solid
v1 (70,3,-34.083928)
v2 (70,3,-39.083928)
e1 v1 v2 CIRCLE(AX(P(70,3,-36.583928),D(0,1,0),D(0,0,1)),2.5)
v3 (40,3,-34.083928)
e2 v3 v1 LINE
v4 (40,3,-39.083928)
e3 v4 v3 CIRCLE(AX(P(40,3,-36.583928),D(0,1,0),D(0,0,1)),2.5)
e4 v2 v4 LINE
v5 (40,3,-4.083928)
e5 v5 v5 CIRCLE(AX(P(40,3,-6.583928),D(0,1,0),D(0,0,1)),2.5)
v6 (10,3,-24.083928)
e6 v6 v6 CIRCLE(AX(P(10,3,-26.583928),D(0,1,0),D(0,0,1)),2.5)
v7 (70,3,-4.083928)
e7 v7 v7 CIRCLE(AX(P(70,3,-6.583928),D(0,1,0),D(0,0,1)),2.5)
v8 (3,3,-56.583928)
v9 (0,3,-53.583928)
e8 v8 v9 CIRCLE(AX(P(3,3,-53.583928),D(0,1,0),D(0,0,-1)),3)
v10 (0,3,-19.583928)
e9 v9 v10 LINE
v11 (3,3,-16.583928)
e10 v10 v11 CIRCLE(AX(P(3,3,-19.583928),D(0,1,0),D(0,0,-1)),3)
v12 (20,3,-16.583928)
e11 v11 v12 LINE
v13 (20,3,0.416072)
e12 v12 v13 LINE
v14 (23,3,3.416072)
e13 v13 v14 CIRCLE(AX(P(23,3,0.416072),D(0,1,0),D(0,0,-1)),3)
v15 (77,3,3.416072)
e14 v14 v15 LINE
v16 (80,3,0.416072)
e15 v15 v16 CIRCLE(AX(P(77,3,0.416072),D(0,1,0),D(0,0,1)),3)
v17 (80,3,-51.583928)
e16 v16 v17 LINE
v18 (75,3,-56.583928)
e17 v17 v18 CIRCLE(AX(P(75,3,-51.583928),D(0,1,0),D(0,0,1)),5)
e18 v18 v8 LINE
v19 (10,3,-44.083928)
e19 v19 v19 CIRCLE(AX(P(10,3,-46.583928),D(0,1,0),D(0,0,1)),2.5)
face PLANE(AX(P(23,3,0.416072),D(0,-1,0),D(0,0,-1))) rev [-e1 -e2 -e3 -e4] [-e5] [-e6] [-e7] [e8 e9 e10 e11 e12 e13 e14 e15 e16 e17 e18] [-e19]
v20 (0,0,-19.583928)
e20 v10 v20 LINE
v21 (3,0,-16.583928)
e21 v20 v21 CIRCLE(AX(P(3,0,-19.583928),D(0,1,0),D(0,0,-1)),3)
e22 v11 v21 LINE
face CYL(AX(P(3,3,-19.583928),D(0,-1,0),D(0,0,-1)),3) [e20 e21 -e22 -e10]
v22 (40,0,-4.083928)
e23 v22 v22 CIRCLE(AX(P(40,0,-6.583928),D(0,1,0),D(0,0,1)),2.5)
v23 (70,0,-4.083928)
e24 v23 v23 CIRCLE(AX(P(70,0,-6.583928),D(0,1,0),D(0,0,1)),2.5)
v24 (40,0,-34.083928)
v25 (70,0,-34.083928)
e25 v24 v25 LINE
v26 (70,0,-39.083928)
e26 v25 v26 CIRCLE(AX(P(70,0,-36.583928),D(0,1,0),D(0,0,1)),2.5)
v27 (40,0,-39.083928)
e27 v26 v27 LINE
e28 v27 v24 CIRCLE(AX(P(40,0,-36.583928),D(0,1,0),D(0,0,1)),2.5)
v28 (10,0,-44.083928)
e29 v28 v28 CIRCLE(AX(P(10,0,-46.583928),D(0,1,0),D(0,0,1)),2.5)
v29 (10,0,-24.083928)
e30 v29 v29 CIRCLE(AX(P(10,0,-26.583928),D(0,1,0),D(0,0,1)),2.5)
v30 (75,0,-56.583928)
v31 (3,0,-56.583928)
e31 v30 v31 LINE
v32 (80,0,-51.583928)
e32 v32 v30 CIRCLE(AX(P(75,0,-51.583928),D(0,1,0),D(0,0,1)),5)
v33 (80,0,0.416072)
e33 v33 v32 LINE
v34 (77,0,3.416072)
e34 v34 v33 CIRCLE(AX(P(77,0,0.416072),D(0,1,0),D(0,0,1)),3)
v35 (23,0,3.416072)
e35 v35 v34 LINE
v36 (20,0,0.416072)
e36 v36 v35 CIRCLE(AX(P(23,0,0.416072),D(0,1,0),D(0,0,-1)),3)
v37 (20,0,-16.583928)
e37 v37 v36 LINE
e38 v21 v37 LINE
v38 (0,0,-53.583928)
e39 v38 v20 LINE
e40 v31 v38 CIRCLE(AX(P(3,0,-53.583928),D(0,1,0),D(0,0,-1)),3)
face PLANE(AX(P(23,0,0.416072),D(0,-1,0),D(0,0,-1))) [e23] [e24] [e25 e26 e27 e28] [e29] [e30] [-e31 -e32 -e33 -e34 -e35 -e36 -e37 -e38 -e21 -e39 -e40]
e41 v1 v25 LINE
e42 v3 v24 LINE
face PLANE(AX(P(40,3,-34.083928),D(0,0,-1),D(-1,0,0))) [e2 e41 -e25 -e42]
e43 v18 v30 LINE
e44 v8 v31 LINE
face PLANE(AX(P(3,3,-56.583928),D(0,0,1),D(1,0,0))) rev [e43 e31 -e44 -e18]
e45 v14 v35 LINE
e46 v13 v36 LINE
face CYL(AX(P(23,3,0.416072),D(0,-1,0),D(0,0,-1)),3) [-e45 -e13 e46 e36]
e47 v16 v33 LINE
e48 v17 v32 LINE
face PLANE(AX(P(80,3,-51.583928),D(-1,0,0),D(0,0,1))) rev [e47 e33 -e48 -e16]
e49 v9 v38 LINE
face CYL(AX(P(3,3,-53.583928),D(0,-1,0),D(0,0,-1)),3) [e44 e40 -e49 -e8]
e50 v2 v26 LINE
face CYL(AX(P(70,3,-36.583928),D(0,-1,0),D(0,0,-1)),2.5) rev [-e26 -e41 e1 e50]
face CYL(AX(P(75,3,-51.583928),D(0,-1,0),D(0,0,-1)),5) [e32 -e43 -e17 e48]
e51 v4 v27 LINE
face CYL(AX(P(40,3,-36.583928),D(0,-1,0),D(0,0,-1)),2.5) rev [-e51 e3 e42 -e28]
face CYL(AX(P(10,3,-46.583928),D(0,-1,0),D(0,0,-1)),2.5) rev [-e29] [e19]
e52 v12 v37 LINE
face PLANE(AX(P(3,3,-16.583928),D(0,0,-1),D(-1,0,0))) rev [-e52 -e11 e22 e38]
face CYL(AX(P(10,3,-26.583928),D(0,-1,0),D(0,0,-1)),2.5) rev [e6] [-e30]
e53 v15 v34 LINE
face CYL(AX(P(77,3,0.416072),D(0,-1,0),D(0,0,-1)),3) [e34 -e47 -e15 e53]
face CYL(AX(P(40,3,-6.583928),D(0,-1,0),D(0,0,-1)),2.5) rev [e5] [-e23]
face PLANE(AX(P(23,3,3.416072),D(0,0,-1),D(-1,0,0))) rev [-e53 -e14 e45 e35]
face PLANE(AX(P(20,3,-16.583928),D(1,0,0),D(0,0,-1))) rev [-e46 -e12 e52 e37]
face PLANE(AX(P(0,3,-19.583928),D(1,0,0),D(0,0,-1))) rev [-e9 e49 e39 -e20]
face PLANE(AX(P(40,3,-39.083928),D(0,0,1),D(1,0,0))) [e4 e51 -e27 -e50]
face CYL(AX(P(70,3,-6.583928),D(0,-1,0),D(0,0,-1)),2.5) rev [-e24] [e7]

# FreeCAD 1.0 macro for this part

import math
import FreeCAD as App
import Part
import Sketcher

V = App.Vector

doc = App.newDocument("Part")
body = doc.addObject("PartDesign::Body", "Body")

# Sketch on XZ plane
sketch1 = body.newObject("Sketcher::SketchObject", "Sketch")
sketch1.AttachmentSupport = (doc.getObject("XZ_Plane"), [""])
sketch1.MapMode = "FlatFace"
sketch1.addGeometry([
    Part.LineSegment(V(0, -53.583928, 0), V(0, -19.583928, 0)),  # 0
    Part.ArcOfCircle(Part.Circle(V(3, -19.583928, 0), V(0, 0, 1), 3), math.radians(90), math.radians(180)),  # 1
    Part.LineSegment(V(3, -16.583928, 0), V(20, -16.583928, 0)),  # 2
    Part.LineSegment(V(20, -16.583928, 0), V(20, 0.416072, 0)),  # 3
    Part.ArcOfCircle(Part.Circle(V(23, 0.416072, 0), V(0, 0, 1), 3), math.radians(90), math.radians(180)),  # 4
    Part.LineSegment(V(23, 3.416072, 0), V(77, 3.416072, 0)),  # 5
    Part.ArcOfCircle(Part.Circle(V(77, 0.416072, 0), V(0, 0, 1), 3), math.radians(0), math.radians(90)),  # 6
    Part.LineSegment(V(80, 0.416072, 0), V(80, -51.583928, 0)),  # 7
    Part.ArcOfCircle(Part.Circle(V(75, -51.583928, 0), V(0, 0, 1), 5), math.radians(-90), math.radians(0)),  # 8
    Part.LineSegment(V(75, -56.583928, 0), V(3, -56.583928, 0)),  # 9
    Part.ArcOfCircle(Part.Circle(V(3, -53.583928, 0), V(0, 0, 1), 3), math.radians(180), math.radians(270)),  # 10
    Part.Circle(V(70, -6.583928, 0), V(0, 0, 1), 2.5),  # 11
    Part.Circle(V(40, -6.583928, 0), V(0, 0, 1), 2.5),  # 12
    Part.LineSegment(V(40, -39.083928, 0), V(70, -39.083928, 0)),  # 13
    Part.ArcOfCircle(Part.Circle(V(70, -36.583928, 0), V(0, 0, 1), 2.5), math.radians(-90), math.radians(90)),  # 14
    Part.LineSegment(V(70, -34.083928, 0), V(40, -34.083928, 0)),  # 15
    Part.ArcOfCircle(Part.Circle(V(40, -36.583928, 0), V(0, 0, 1), 2.5), math.radians(90), math.radians(270)),  # 16
    Part.Circle(V(10, -26.583928, 0), V(0, 0, 1), 2.5),  # 17
    Part.Circle(V(10, -46.583928, 0), V(0, 0, 1), 2.5),  # 18
], False)
sketch1.addConstraint([
    Sketcher.Constraint("Tangent", 0, 2, 1, 2),
    Sketcher.Constraint("Tangent", 1, 1, 2, 1),
    Sketcher.Constraint("Coincident", 2, 2, 3, 1),
    Sketcher.Constraint("Tangent", 3, 2, 4, 2),
    Sketcher.Constraint("Tangent", 4, 1, 5, 1),
    Sketcher.Constraint("Tangent", 5, 2, 6, 2),
    Sketcher.Constraint("Tangent", 6, 1, 7, 1),
    Sketcher.Constraint("Tangent", 7, 2, 8, 2),
    Sketcher.Constraint("Tangent", 8, 1, 9, 1),
    Sketcher.Constraint("Tangent", 9, 2, 10, 2),
    Sketcher.Constraint("Tangent", 10, 1, 0, 1),
    Sketcher.Constraint("Tangent", 13, 2, 14, 1),
    Sketcher.Constraint("Tangent", 14, 2, 15, 1),
    Sketcher.Constraint("Tangent", 15, 2, 16, 1),
    Sketcher.Constraint("Tangent", 16, 2, 13, 1),
    Sketcher.Constraint("Vertical", 0),
    Sketcher.Constraint("Horizontal", 2),
    Sketcher.Constraint("Vertical", 3),
    Sketcher.Constraint("Horizontal", 5),
    Sketcher.Constraint("Vertical", 7),
    Sketcher.Constraint("Horizontal", 9),
    Sketcher.Constraint("Horizontal", 13),
    Sketcher.Constraint("Horizontal", 15),
    Sketcher.Constraint("Equal", 1, 4),
    Sketcher.Constraint("Equal", 4, 6),
    Sketcher.Constraint("Equal", 6, 10),
    Sketcher.Constraint("Equal", 11, 12),
    Sketcher.Constraint("Equal", 12, 14),
    Sketcher.Constraint("Equal", 16, 17),
    Sketcher.Constraint("Equal", 17, 18),
    Sketcher.Constraint("PointOnObject", 0, 2, -2),
    Sketcher.Constraint("Horizontal", 11, 3, 12, 3),
    Sketcher.Constraint("Vertical", 11, 3, 14, 3),
    Sketcher.Constraint("Vertical", 12, 3, 16, 3),
    Sketcher.Constraint("Vertical", 17, 3, 18, 3),
    Sketcher.Constraint("Equal", 2, 3),
    Sketcher.Constraint("Diameter", 11, 5.0),
    Sketcher.Constraint("Radius", 1, 3.0),
    Sketcher.Constraint("Radius", 8, 5.0),
    Sketcher.Constraint("DistanceX", 2, 1, 2, 2, 17.0),
    Sketcher.Constraint("DistanceX", 5, 1, 5, 2, 54.0),
    Sketcher.Constraint("DistanceX", 13, 1, 13, 2, 30.0),
    Sketcher.Constraint("DistanceY", 0, 1, 0, 2, 34.0),
    Sketcher.Constraint("DistanceX", -1, 1, 11, 3, 70.0),
    Sketcher.Constraint("DistanceX", -1, 1, 17, 3, 10.0),
    Sketcher.Constraint("DistanceY", 11, 3, 6, 3, 7.0),
    Sketcher.Constraint("DistanceY", 8, 3, 14, 3, 15.0),
    Sketcher.Constraint("DistanceY", 17, 3, 1, 3, 7.0),
    Sketcher.Constraint("DistanceY", 10, 3, 18, 3, 7.0),
    Sketcher.Constraint("DistanceY", 1, 3, -1, 1, 19.583928),
])
pad1 = body.newObject("PartDesign::Pad", "Pad")
pad1.Profile = sketch1
pad1.Length = 3
pad1.Reversed = True

doc.recompute()
